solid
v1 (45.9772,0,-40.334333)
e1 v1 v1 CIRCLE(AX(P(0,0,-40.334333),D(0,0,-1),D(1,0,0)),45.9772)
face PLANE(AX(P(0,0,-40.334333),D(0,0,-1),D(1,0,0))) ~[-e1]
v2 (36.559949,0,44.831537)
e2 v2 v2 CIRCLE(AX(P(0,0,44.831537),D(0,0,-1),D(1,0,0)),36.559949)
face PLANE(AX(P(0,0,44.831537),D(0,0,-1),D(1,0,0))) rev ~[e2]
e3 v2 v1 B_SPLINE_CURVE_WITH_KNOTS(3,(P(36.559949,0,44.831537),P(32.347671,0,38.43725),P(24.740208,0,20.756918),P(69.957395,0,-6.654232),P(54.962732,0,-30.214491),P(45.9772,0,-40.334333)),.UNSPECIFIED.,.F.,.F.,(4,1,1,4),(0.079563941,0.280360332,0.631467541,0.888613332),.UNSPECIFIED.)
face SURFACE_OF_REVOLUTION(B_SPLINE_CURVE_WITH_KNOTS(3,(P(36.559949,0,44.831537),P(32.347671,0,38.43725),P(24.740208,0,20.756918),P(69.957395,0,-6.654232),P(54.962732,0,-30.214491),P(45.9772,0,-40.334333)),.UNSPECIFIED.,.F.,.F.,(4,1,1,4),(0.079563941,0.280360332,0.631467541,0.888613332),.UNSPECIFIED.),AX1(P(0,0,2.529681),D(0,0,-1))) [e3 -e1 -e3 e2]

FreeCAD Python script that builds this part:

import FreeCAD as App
import Part
import Sketcher

doc = App.newDocument("Part")
body = doc.addObject("PartDesign::Body", "Body")

sketch1 = body.newObject("Sketcher::SketchObject", "Sketch")
sketch1.AttachmentSupport = (doc.getObject("XZ_Plane"), [""])
sketch1.MapMode = "FlatFace"
sketch1.addGeometry([
    Part.BSplineCurve([App.Vector(36.559949, 44.831537, 0), App.Vector(32.347671, 38.43725, 0), App.Vector(24.740208, 20.756918, 0), App.Vector(69.957395, -6.654232, 0), App.Vector(54.962732, -30.214491, 0), App.Vector(45.9772, -40.334333, 0)], [4, 1, 1, 4], [0.079563941, 0.280360332, 0.631467541, 0.888613332], False, 3, [1, 1, 1, 1, 1, 1], False),
    Part.LineSegment(App.Vector(36.559949, 44.831537, 0), App.Vector(0, 44.831537, 0)),
    Part.LineSegment(App.Vector(0, 44.831537, 0), App.Vector(0, -40.334333, 0)),
    Part.LineSegment(App.Vector(0, -40.334333, 0), App.Vector(45.9772, -40.334333, 0)),
], False)
sketch1.addConstraint([
    Sketcher.Constraint("Block", 0),
    Sketcher.Constraint("Coincident", 0, 1, 1, 1),
    Sketcher.Constraint("Coincident", 1, 2, 2, 1),
    Sketcher.Constraint("Coincident", 2, 2, 3, 1),
    Sketcher.Constraint("Coincident", 3, 2, 0, 2),
    Sketcher.Constraint("Horizontal", 1),
    Sketcher.Constraint("Vertical", 2),
    Sketcher.Constraint("Horizontal", 3),
    Sketcher.Constraint("PointOnObject", 1, 2, -2),
])
revolution = body.newObject("PartDesign::Revolution", "Revolution")
revolution.Profile = sketch1
revolution.ReferenceAxis = (sketch1, ["V_Axis"])
revolution.Angle = 360

doc.recompute()
